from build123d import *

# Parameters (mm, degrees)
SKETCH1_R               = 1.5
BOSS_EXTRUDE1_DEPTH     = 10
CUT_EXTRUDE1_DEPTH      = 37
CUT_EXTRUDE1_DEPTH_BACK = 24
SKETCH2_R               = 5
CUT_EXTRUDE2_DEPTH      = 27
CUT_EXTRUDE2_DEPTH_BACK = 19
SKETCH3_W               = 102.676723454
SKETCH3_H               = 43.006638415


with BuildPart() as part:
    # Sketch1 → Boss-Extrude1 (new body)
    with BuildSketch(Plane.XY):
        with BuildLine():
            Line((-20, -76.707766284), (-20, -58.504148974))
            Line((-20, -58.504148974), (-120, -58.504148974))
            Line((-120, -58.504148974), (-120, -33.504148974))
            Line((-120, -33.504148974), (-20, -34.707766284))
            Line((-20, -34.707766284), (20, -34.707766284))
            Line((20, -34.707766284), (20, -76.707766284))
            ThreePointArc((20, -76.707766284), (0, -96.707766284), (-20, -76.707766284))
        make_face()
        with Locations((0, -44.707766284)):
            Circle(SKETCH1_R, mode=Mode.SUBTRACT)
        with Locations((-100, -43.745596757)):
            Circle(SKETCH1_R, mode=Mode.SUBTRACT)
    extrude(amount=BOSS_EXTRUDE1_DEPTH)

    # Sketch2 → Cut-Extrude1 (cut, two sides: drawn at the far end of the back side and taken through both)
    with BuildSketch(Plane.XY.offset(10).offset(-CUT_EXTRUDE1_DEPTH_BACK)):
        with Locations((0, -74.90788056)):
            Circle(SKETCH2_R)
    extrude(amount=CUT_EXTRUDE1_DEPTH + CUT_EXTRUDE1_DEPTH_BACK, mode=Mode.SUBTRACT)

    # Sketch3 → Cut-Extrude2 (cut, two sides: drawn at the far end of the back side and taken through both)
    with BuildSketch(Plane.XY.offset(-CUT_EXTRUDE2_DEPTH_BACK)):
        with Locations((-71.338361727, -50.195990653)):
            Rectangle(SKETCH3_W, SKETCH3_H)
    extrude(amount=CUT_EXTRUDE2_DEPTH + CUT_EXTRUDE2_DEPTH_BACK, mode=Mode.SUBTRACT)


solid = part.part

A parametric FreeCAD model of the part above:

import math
import FreeCAD as App
import Part
import Sketcher

V = App.Vector
Q = App.Units.Quantity


def add_polygon(sketch, points):
    """Adds a closed chain of lines whose ends are joined by coincident constraints."""
    first, n = sketch.GeometryCount, len(points)
    for a, b in zip(points, points[1:] + points[:1]):
        sketch.addGeometry(Part.LineSegment(App.Vector(*a, 0), App.Vector(*b, 0)), False)
    for i in range(n):
        sketch.addConstraint(Sketcher.Constraint("Coincident", first + i, 2, first + (i + 1) % n, 1))

doc = App.newDocument("Part")
params = doc.addObject("Spreadsheet::Sheet", "Params")
for row, (alias, value) in enumerate([
    ("sketch1_diameter", "3 mm"),
    ("sketch1_radius", "20 mm"),
    ("sketch1_width", "100 mm"),
    ("sketch1_height", "42 mm"),
    ("sketch1_height2", "25 mm"),
    ("pad1_length", "10 mm"),
    ("sketch2_diameter", "10 mm"),
], start=1):
    params.set(f"A{row}", alias)
    params.set(f"B{row}", "=" + value)
    params.setAlias(f"B{row}", alias)

body = doc.addObject("PartDesign::Body", "Body")

# Sketch on XY plane
sketch1 = body.newObject("Sketcher::SketchObject", "Sketch")
sketch1.AttachmentSupport = (doc.getObject("XY_Plane"), [""])
sketch1.MapMode = "FlatFace"
sketch1.addGeometry([
    Part.LineSegment(V(-20, -58.5, 0), V(-20, -76.7, 0)),  # 0
    Part.ArcOfCircle(Part.Circle(V(0, -76.7, 0), V(0, 0, 1), 20), math.radians(180), math.radians(360)),  # 1
    Part.LineSegment(V(20, -76.7, 0), V(20, -34.7, 0)),  # 2
    Part.LineSegment(V(20, -34.7, 0), V(-20, -34.7, 0)),  # 3
    Part.LineSegment(V(-20, -34.7, 0), V(-120, -33.5, 0)),  # 4
    Part.LineSegment(V(-120, -33.5, 0), V(-120, -58.5, 0)),  # 5
    Part.LineSegment(V(-120, -58.5, 0), V(-20, -58.5, 0)),  # 6
    Part.Circle(V(0, -44.7, 0), V(0, 0, 1), 1.5),  # 7
    Part.Circle(V(-100, -43.7, 0), V(0, 0, 1), 1.5),  # 8
], False)
sketch1.addConstraint([
    Sketcher.Constraint("Tangent", 0, 2, 1, 1),
    Sketcher.Constraint("Tangent", 1, 2, 2, 1),
    Sketcher.Constraint("Coincident", 2, 2, 3, 1),
    Sketcher.Constraint("Coincident", 3, 2, 4, 1),
    Sketcher.Constraint("Coincident", 4, 2, 5, 1),
    Sketcher.Constraint("Coincident", 5, 2, 6, 1),
    Sketcher.Constraint("Coincident", 6, 2, 0, 1),
    Sketcher.Constraint("Vertical", 0),
    Sketcher.Constraint("Vertical", 2),
    Sketcher.Constraint("Horizontal", 3),
    Sketcher.Constraint("Vertical", 5),
    Sketcher.Constraint("Horizontal", 6),
    Sketcher.Constraint("Equal", 7, 8),
    Sketcher.Constraint("PointOnObject", 1, 3, -2),
    Sketcher.Constraint("PointOnObject", 7, 3, -2),
    Sketcher.Constraint("Vertical", 0, 2, 3, 2),
    Sketcher.Constraint("Diameter", 7, Q("3 mm")),
    Sketcher.Constraint("Radius", 1, Q("20 mm")),
    Sketcher.Constraint("DistanceX", 6, 1, 6, 2, Q("100 mm")),
    Sketcher.Constraint("DistanceY", 2, 1, 2, 2, Q("42 mm")),
    Sketcher.Constraint("DistanceY", 5, 2, 5, 1, Q("25 mm")),
    Sketcher.Constraint("DistanceX", 8, 3, -1, 1, Q("100 mm")),
    Sketcher.Constraint("DistanceY", 1, 3, 7, 3, Q("32 mm")),
    Sketcher.Constraint("DistanceY", 0, 2, 0, 1, Q("18.203617 mm")),
    Sketcher.Constraint("DistanceY", 4, 2, -1, 1, Q("33.504149 mm")),
    Sketcher.Constraint("DistanceY", 7, 3, 8, 3, Q("0.96217 mm")),
])
sketch1.setExpression("Constraints[16]", "Params.sketch1_diameter")
sketch1.setExpression("Constraints[17]", "Params.sketch1_radius")
sketch1.setExpression("Constraints[18]", "Params.sketch1_width")
sketch1.setExpression("Constraints[19]", "Params.sketch1_height")
sketch1.setExpression("Constraints[20]", "Params.sketch1_height2")
pad1 = body.newObject("PartDesign::Pad", "Pad")
pad1.Profile = sketch1
pad1.setExpression("Length", "Params.pad1_length")

# Sketch on XY plane
sketch2 = body.newObject("Sketcher::SketchObject", "Sketch001")
sketch2.AttachmentSupport = (doc.getObject("XY_Plane"), [""])
sketch2.MapMode = "FlatFace"
sketch2.AttachmentOffset = App.Placement(V(0, 0, 10), App.Rotation())
sketch2.addGeometry(Part.Circle(V(0, -75, 0), V(0, 0, 1), 5), False)
sketch2.addConstraint([
    Sketcher.Constraint("PointOnObject", 0, 3, -2),
    Sketcher.Constraint("Diameter", 0, Q("10 mm")),
    Sketcher.Constraint("DistanceY", 0, 3, -1, 1, Q("74.907881 mm")),
])
sketch2.setExpression("Constraints[1]", "Params.sketch2_diameter")
pocket1 = body.newObject("PartDesign::Pocket", "Pocket")
pocket1.Profile = sketch2
pocket1.Type = "ThroughAll"
pocket1.Midplane = True

# Sketch on XY plane
sketch3 = body.newObject("Sketcher::SketchObject", "Sketch002")
sketch3.AttachmentSupport = (doc.getObject("XY_Plane"), [""])
sketch3.MapMode = "FlatFace"
add_polygon(sketch3, [(-123, -29), (-123, -72), (-20, -72), (-20, -29)])  # lines 0-3
sketch3.addConstraint([
    Sketcher.Constraint("Vertical", 0),
    Sketcher.Constraint("Horizontal", 1),
    Sketcher.Constraint("Vertical", 2),
    Sketcher.Constraint("Horizontal", 3),
    Sketcher.Constraint("DistanceX", 1, 2, -1, 1, Q("20 mm")),
    Sketcher.Constraint("DistanceY", 0, 2, 0, 1, Q("43.006638 mm")),
    Sketcher.Constraint("DistanceX", 1, 1, 1, 2, Q("102.676723 mm")),
    Sketcher.Constraint("DistanceY", 0, 2, -1, 1, Q("71.69931 mm")),
])
pocket2 = body.newObject("PartDesign::Pocket", "Pocket001")
pocket2.Profile = sketch3
pocket2.Type = "ThroughAll"
pocket2.Midplane = True

doc.recompute()
